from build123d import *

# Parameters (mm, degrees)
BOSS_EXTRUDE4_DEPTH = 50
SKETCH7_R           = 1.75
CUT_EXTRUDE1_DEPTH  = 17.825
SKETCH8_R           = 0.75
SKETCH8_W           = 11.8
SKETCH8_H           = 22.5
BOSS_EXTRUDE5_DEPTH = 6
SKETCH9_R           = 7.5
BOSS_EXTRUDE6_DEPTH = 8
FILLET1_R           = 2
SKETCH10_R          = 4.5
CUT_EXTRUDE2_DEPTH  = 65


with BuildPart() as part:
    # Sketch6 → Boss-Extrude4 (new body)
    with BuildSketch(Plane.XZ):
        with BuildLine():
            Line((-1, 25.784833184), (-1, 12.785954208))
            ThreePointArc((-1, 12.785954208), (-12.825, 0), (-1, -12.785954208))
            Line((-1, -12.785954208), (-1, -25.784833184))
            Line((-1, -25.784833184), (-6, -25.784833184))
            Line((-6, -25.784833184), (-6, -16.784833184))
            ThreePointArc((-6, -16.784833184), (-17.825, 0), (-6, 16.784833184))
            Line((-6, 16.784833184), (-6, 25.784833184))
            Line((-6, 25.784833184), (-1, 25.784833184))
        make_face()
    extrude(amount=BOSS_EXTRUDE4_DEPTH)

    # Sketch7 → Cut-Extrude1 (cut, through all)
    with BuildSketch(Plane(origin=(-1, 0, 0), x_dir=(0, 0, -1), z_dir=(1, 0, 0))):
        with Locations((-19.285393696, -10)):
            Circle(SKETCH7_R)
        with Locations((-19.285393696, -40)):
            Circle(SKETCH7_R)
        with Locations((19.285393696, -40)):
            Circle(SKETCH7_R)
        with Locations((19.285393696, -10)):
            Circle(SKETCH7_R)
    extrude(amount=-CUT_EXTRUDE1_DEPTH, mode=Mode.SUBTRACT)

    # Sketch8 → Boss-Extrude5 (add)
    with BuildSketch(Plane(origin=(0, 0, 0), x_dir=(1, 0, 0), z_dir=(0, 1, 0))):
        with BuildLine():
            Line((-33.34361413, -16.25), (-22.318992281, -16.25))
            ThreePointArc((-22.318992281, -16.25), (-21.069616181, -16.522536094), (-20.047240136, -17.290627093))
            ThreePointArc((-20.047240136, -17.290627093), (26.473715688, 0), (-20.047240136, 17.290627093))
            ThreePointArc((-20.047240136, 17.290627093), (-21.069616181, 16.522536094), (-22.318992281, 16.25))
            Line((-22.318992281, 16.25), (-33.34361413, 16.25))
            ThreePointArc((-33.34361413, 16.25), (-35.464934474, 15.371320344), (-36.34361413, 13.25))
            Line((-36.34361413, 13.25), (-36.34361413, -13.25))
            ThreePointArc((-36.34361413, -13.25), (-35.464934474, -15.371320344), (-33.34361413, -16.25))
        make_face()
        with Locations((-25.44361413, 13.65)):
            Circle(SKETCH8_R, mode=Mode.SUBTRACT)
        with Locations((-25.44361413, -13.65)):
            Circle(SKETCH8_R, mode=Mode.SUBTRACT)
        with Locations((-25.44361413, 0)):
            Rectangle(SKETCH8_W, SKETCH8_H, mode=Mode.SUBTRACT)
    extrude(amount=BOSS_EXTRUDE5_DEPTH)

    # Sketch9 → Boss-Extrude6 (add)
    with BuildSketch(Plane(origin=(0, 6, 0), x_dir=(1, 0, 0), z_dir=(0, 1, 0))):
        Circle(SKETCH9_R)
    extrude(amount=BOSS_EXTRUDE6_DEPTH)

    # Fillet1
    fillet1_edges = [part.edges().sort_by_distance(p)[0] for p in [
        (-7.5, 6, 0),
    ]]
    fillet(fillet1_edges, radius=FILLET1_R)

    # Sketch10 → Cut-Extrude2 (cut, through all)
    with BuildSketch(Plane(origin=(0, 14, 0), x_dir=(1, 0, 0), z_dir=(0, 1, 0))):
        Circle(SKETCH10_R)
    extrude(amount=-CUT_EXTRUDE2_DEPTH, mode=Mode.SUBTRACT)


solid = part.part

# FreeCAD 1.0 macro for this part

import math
import FreeCAD as App
import Part
import Sketcher
Q = App.Units.Quantity


def edges_at(feature, points):
    """Names of the edges that pass closest to the given points."""
    edges = feature.Shape.Edges
    near = lambda p: min(range(len(edges)), key=lambda i: edges[i].distToShape(Part.Vertex(*p))[0])
    return sorted({f"Edge{near(p) + 1}" for p in points})


def add_polygon(sketch, points):
    """Adds a closed chain of lines whose ends are joined by coincident constraints."""
    first, n = sketch.GeometryCount, len(points)
    for a, b in zip(points, points[1:] + points[:1]):
        sketch.addGeometry(Part.LineSegment(App.Vector(*a, 0), App.Vector(*b, 0)), False)
    for i in range(n):
        sketch.addConstraint(Sketcher.Constraint("Coincident", first + i, 2, first + (i + 1) % n, 1))

doc = App.newDocument("Part")
body = doc.addObject("PartDesign::Body", "Body")

# Sketch on XZ plane
sketch1 = body.newObject("Sketcher::SketchObject", "Sketch")
sketch1.AttachmentSupport = (doc.getObject("XZ_Plane"), [""])
sketch1.MapMode = "FlatFace"
sketch1.addGeometry(Part.LineSegment(App.Vector(-1, 12.785954, 0), App.Vector(-1, 25.784833, 0)), False)
sketch1.addGeometry(Part.LineSegment(App.Vector(-1, 25.784833, 0), App.Vector(-6, 25.784833, 0)), False)
sketch1.addGeometry(Part.LineSegment(App.Vector(-6, 25.784833, 0), App.Vector(-6, 16.784833, 0)), False)
sketch1.addGeometry(Part.ArcOfCircle(Part.Circle(App.Vector(0, 0, 0), App.Vector(0, 0, 1), 17.825), math.radians(109.670221), math.radians(250.329779)), False)
sketch1.addGeometry(Part.LineSegment(App.Vector(-6, -16.784833, 0), App.Vector(-6, -25.784833, 0)), False)
sketch1.addGeometry(Part.LineSegment(App.Vector(-6, -25.784833, 0), App.Vector(-1, -25.784833, 0)), False)
sketch1.addGeometry(Part.LineSegment(App.Vector(-1, -25.784833, 0), App.Vector(-1, -12.785954, 0)), False)
sketch1.addGeometry(Part.ArcOfCircle(Part.Circle(App.Vector(0, 0, 0), App.Vector(0, 0, 1), 12.825), math.radians(94.472046), math.radians(265.527954)), False)
sketch1.addConstraint(Sketcher.Constraint("Coincident", 0, 2, 1, 1))
sketch1.addConstraint(Sketcher.Constraint("Coincident", 1, 2, 2, 1))
sketch1.addConstraint(Sketcher.Constraint("Coincident", 2, 2, 3, 1))
sketch1.addConstraint(Sketcher.Constraint("Coincident", 3, 2, 4, 1))
sketch1.addConstraint(Sketcher.Constraint("Coincident", 4, 2, 5, 1))
sketch1.addConstraint(Sketcher.Constraint("Coincident", 5, 2, 6, 1))
sketch1.addConstraint(Sketcher.Constraint("Coincident", 6, 2, 7, 2))
sketch1.addConstraint(Sketcher.Constraint("Coincident", 7, 1, 0, 1))
sketch1.addConstraint(Sketcher.Constraint("Vertical", 0))
sketch1.addConstraint(Sketcher.Constraint("Horizontal", 1))
sketch1.addConstraint(Sketcher.Constraint("Vertical", 2))
sketch1.addConstraint(Sketcher.Constraint("Vertical", 4))
sketch1.addConstraint(Sketcher.Constraint("Horizontal", 5))
sketch1.addConstraint(Sketcher.Constraint("Vertical", 6))
sketch1.addConstraint(Sketcher.Constraint("Coincident", 3, 3, -1, 1))
sketch1.addConstraint(Sketcher.Constraint("Coincident", 7, 3, -1, 1))
sketch1.addConstraint(Sketcher.Constraint("Symmetric", 1, 2, 4, 2, -1))
sketch1.addConstraint(Sketcher.Constraint("Vertical", 0, 2, 5, 2))
sketch1.addConstraint(Sketcher.Constraint("DistanceX", 1, 2, 1, 1, Q("5 mm")))
sketch1.addConstraint(Sketcher.Constraint("DistanceY", 2, 2, 2, 1, Q("9 mm")))
sketch1.addConstraint(Sketcher.Constraint("DistanceX", 0, 2, -1, 1, Q("1 mm")))
sketch1.addConstraint(Sketcher.Constraint("Radius", 3, Q("17.825 mm")))
sketch1.addConstraint(Sketcher.Constraint("Radius", 7, Q("12.825 mm")))
pad1 = body.newObject("PartDesign::Pad", "Pad")
pad1.Profile = sketch1
pad1.Length = 50

# Sketch on YZ plane
sketch2 = body.newObject("Sketcher::SketchObject", "Sketch001")
sketch2.AttachmentSupport = (doc.getObject("YZ_Plane"), [""])
sketch2.MapMode = "FlatFace"
sketch2.AttachmentOffset = App.Placement(App.Vector(0, 0, -1), App.Rotation())
sketch2.addGeometry(Part.Circle(App.Vector(-10, 19.285394, 0), App.Vector(0, 0, 1), 1.75), False)
sketch2.addGeometry(Part.Circle(App.Vector(-40, 19.285394, 0), App.Vector(0, 0, 1), 1.75), False)
sketch2.addGeometry(Part.Circle(App.Vector(-40, -19.285394, 0), App.Vector(0, 0, 1), 1.75), False)
sketch2.addGeometry(Part.Circle(App.Vector(-10, -19.285394, 0), App.Vector(0, 0, 1), 1.75), False)
sketch2.addConstraint(Sketcher.Constraint("Equal", 0, 1))
sketch2.addConstraint(Sketcher.Constraint("Equal", 1, 2))
sketch2.addConstraint(Sketcher.Constraint("Equal", 2, 3))
sketch2.addConstraint(Sketcher.Constraint("Symmetric", 1, 3, 2, 3, -1))
sketch2.addConstraint(Sketcher.Constraint("Symmetric", 0, 3, 3, 3, -1))
sketch2.addConstraint(Sketcher.Constraint("Horizontal", 0, 3, 1, 3))
sketch2.addConstraint(Sketcher.Constraint("Diameter", 0, Q("3.5 mm")))
sketch2.addConstraint(Sketcher.Constraint("DistanceX", 0, 3, -1, 1, Q("10 mm")))
sketch2.addConstraint(Sketcher.Constraint("DistanceX", 1, 3, -1, 1, Q("40 mm")))
sketch2.addConstraint(Sketcher.Constraint("DistanceY", -1, 1, 0, 3, Q("19.285394 mm")))
pocket1 = body.newObject("PartDesign::Pocket", "Pocket")
pocket1.Profile = sketch2
pocket1.Type = "ThroughAll"

# Sketch on XZ plane
sketch3 = body.newObject("Sketcher::SketchObject", "Sketch002")
sketch3.AttachmentSupport = (doc.getObject("XZ_Plane"), [""])
sketch3.MapMode = "FlatFace"
sketch3.addGeometry(Part.LineSegment(App.Vector(-33.343614, 16.25, 0), App.Vector(-22.318992, 16.25, 0)), False)  # 0
sketch3.addGeometry(Part.ArcOfCircle(Part.Circle(App.Vector(-22.318992, 19.25, 0), App.Vector(0, 0, 1), 3), math.radians(-90), math.radians(-40.777577)), False)  # 1
sketch3.addGeometry(Part.ArcOfCircle(Part.Circle(App.Vector(0, 0, 0), App.Vector(0, 0, 1), 26.473716), math.radians(-139.222423), math.radians(139.222423)), False)  # 2
sketch3.addGeometry(Part.ArcOfCircle(Part.Circle(App.Vector(-22.318992, -19.25, 0), App.Vector(0, 0, 1), 3), math.radians(40.777577), math.radians(90)), False)  # 3
sketch3.addGeometry(Part.LineSegment(App.Vector(-22.318992, -16.25, 0), App.Vector(-33.343614, -16.25, 0)), False)  # 4
sketch3.addGeometry(Part.ArcOfCircle(Part.Circle(App.Vector(-33.343614, -13.25, 0), App.Vector(0, 0, 1), 3), math.radians(180), math.radians(270)), False)  # 5
sketch3.addGeometry(Part.LineSegment(App.Vector(-36.343614, -13.25, 0), App.Vector(-36.343614, 13.25, 0)), False)  # 6
sketch3.addGeometry(Part.ArcOfCircle(Part.Circle(App.Vector(-33.343614, 13.25, 0), App.Vector(0, 0, 1), 3), math.radians(90), math.radians(180)), False)  # 7
sketch3.addGeometry(Part.Circle(App.Vector(-25.443614, 13.65, 0), App.Vector(0, 0, 1), 0.75), False)  # 8
add_polygon(sketch3, [(-19.543614, 11.25), (-31.343614, 11.25), (-31.343614, -11.25), (-19.543614, -11.25)])  # lines 9-12
sketch3.addGeometry(Part.Circle(App.Vector(-25.443614, -13.65, 0), App.Vector(0, 0, 1), 0.75), False)  # 13
sketch3.addConstraint(Sketcher.Constraint("Tangent", 0, 2, 1, 1))
sketch3.addConstraint(Sketcher.Constraint("Tangent", 1, 2, 2, 2))
sketch3.addConstraint(Sketcher.Constraint("Tangent", 2, 1, 3, 1))
sketch3.addConstraint(Sketcher.Constraint("Tangent", 3, 2, 4, 1))
sketch3.addConstraint(Sketcher.Constraint("Tangent", 4, 2, 5, 2))
sketch3.addConstraint(Sketcher.Constraint("Tangent", 5, 1, 6, 1))
sketch3.addConstraint(Sketcher.Constraint("Tangent", 6, 2, 7, 2))
sketch3.addConstraint(Sketcher.Constraint("Tangent", 7, 1, 0, 1))
sketch3.addConstraint(Sketcher.Constraint("Horizontal", 0))
sketch3.addConstraint(Sketcher.Constraint("Horizontal", 4))
sketch3.addConstraint(Sketcher.Constraint("Vertical", 6))
sketch3.addConstraint(Sketcher.Constraint("Horizontal", 9))
sketch3.addConstraint(Sketcher.Constraint("Vertical", 10))
sketch3.addConstraint(Sketcher.Constraint("Horizontal", 11))
sketch3.addConstraint(Sketcher.Constraint("Vertical", 12))
sketch3.addConstraint(Sketcher.Constraint("Coincident", 2, 3, -1, 1))
sketch3.addConstraint(Sketcher.Constraint("Equal", 1, 3))
sketch3.addConstraint(Sketcher.Constraint("Equal", 3, 5))
sketch3.addConstraint(Sketcher.Constraint("Equal", 5, 7))
sketch3.addConstraint(Sketcher.Constraint("Equal", 8, 13))
sketch3.addConstraint(Sketcher.Constraint("Symmetric", 8, 3, 13, 3, -1))
sketch3.addConstraint(Sketcher.Constraint("Vertical", 1, 3, 3, 3))
sketch3.addConstraint(Sketcher.Constraint("Radius", 1, Q("3 mm")))
sketch3.addConstraint(Sketcher.Constraint("Diameter", 8, Q("1.5 mm")))
sketch3.addConstraint(Sketcher.Constraint("DistanceX", 9, 2, 9, 1, Q("11.8 mm")))
sketch3.addConstraint(Sketcher.Constraint("DistanceY", 6, 1, 6, 2, Q("26.5 mm")))
sketch3.addConstraint(Sketcher.Constraint("DistanceY", 10, 2, 10, 1, Q("22.5 mm")))
sketch3.addConstraint(Sketcher.Constraint("DistanceX", 7, 3, 9, 2, Q("2 mm")))
sketch3.addConstraint(Sketcher.Constraint("DistanceY", 9, 2, 7, 3, Q("2 mm")))
sketch3.addConstraint(Sketcher.Constraint("DistanceY", 8, 3, 1, 3, Q("5.6 mm")))
sketch3.addConstraint(Sketcher.Constraint("DistanceX", 7, 3, 8, 3, Q("7.9 mm")))
sketch3.addConstraint(Sketcher.Constraint("Radius", 2, Q("26.473716 mm")))
sketch3.addConstraint(Sketcher.Constraint("DistanceX", 0, 1, 0, 2, Q("11.024622 mm")))
pad2 = body.newObject("PartDesign::Pad", "Pad001")
pad2.Profile = sketch3
pad2.Length = 6
pad2.Reversed = True

# Sketch on XZ plane
sketch4 = body.newObject("Sketcher::SketchObject", "Sketch003")
sketch4.AttachmentSupport = (doc.getObject("XZ_Plane"), [""])
sketch4.MapMode = "FlatFace"
sketch4.AttachmentOffset = App.Placement(App.Vector(0, 0, -6), App.Rotation())
sketch4.addGeometry(Part.Circle(App.Vector(0, 0, 0), App.Vector(0, 0, 1), 7.5), False)
sketch4.addConstraint(Sketcher.Constraint("Coincident", 0, 3, -1, 1))
sketch4.addConstraint(Sketcher.Constraint("Diameter", 0, Q("15 mm")))
pad3 = body.newObject("PartDesign::Pad", "Pad002")
pad3.Profile = sketch4
pad3.Length = 8
pad3.Reversed = True
doc.recompute()

fillet = body.newObject("PartDesign::Fillet", "Fillet")
fillet.Base = (pad3, edges_at(pad3, [(-7.5, 6, 0)]))
fillet.Radius = 2

# Sketch on XZ plane
sketch5 = body.newObject("Sketcher::SketchObject", "Sketch004")
sketch5.AttachmentSupport = (doc.getObject("XZ_Plane"), [""])
sketch5.MapMode = "FlatFace"
sketch5.AttachmentOffset = App.Placement(App.Vector(0, 0, -14), App.Rotation())
sketch5.addGeometry(Part.Circle(App.Vector(0, 0, 0), App.Vector(0, 0, 1), 4.5), False)
sketch5.addConstraint(Sketcher.Constraint("Coincident", 0, 3, -1, 1))
sketch5.addConstraint(Sketcher.Constraint("Diameter", 0, Q("9 mm")))
pocket2 = body.newObject("PartDesign::Pocket", "Pocket001")
pocket2.Profile = sketch5
pocket2.Type = "ThroughAll"
pocket2.Reversed = True

doc.recompute()
